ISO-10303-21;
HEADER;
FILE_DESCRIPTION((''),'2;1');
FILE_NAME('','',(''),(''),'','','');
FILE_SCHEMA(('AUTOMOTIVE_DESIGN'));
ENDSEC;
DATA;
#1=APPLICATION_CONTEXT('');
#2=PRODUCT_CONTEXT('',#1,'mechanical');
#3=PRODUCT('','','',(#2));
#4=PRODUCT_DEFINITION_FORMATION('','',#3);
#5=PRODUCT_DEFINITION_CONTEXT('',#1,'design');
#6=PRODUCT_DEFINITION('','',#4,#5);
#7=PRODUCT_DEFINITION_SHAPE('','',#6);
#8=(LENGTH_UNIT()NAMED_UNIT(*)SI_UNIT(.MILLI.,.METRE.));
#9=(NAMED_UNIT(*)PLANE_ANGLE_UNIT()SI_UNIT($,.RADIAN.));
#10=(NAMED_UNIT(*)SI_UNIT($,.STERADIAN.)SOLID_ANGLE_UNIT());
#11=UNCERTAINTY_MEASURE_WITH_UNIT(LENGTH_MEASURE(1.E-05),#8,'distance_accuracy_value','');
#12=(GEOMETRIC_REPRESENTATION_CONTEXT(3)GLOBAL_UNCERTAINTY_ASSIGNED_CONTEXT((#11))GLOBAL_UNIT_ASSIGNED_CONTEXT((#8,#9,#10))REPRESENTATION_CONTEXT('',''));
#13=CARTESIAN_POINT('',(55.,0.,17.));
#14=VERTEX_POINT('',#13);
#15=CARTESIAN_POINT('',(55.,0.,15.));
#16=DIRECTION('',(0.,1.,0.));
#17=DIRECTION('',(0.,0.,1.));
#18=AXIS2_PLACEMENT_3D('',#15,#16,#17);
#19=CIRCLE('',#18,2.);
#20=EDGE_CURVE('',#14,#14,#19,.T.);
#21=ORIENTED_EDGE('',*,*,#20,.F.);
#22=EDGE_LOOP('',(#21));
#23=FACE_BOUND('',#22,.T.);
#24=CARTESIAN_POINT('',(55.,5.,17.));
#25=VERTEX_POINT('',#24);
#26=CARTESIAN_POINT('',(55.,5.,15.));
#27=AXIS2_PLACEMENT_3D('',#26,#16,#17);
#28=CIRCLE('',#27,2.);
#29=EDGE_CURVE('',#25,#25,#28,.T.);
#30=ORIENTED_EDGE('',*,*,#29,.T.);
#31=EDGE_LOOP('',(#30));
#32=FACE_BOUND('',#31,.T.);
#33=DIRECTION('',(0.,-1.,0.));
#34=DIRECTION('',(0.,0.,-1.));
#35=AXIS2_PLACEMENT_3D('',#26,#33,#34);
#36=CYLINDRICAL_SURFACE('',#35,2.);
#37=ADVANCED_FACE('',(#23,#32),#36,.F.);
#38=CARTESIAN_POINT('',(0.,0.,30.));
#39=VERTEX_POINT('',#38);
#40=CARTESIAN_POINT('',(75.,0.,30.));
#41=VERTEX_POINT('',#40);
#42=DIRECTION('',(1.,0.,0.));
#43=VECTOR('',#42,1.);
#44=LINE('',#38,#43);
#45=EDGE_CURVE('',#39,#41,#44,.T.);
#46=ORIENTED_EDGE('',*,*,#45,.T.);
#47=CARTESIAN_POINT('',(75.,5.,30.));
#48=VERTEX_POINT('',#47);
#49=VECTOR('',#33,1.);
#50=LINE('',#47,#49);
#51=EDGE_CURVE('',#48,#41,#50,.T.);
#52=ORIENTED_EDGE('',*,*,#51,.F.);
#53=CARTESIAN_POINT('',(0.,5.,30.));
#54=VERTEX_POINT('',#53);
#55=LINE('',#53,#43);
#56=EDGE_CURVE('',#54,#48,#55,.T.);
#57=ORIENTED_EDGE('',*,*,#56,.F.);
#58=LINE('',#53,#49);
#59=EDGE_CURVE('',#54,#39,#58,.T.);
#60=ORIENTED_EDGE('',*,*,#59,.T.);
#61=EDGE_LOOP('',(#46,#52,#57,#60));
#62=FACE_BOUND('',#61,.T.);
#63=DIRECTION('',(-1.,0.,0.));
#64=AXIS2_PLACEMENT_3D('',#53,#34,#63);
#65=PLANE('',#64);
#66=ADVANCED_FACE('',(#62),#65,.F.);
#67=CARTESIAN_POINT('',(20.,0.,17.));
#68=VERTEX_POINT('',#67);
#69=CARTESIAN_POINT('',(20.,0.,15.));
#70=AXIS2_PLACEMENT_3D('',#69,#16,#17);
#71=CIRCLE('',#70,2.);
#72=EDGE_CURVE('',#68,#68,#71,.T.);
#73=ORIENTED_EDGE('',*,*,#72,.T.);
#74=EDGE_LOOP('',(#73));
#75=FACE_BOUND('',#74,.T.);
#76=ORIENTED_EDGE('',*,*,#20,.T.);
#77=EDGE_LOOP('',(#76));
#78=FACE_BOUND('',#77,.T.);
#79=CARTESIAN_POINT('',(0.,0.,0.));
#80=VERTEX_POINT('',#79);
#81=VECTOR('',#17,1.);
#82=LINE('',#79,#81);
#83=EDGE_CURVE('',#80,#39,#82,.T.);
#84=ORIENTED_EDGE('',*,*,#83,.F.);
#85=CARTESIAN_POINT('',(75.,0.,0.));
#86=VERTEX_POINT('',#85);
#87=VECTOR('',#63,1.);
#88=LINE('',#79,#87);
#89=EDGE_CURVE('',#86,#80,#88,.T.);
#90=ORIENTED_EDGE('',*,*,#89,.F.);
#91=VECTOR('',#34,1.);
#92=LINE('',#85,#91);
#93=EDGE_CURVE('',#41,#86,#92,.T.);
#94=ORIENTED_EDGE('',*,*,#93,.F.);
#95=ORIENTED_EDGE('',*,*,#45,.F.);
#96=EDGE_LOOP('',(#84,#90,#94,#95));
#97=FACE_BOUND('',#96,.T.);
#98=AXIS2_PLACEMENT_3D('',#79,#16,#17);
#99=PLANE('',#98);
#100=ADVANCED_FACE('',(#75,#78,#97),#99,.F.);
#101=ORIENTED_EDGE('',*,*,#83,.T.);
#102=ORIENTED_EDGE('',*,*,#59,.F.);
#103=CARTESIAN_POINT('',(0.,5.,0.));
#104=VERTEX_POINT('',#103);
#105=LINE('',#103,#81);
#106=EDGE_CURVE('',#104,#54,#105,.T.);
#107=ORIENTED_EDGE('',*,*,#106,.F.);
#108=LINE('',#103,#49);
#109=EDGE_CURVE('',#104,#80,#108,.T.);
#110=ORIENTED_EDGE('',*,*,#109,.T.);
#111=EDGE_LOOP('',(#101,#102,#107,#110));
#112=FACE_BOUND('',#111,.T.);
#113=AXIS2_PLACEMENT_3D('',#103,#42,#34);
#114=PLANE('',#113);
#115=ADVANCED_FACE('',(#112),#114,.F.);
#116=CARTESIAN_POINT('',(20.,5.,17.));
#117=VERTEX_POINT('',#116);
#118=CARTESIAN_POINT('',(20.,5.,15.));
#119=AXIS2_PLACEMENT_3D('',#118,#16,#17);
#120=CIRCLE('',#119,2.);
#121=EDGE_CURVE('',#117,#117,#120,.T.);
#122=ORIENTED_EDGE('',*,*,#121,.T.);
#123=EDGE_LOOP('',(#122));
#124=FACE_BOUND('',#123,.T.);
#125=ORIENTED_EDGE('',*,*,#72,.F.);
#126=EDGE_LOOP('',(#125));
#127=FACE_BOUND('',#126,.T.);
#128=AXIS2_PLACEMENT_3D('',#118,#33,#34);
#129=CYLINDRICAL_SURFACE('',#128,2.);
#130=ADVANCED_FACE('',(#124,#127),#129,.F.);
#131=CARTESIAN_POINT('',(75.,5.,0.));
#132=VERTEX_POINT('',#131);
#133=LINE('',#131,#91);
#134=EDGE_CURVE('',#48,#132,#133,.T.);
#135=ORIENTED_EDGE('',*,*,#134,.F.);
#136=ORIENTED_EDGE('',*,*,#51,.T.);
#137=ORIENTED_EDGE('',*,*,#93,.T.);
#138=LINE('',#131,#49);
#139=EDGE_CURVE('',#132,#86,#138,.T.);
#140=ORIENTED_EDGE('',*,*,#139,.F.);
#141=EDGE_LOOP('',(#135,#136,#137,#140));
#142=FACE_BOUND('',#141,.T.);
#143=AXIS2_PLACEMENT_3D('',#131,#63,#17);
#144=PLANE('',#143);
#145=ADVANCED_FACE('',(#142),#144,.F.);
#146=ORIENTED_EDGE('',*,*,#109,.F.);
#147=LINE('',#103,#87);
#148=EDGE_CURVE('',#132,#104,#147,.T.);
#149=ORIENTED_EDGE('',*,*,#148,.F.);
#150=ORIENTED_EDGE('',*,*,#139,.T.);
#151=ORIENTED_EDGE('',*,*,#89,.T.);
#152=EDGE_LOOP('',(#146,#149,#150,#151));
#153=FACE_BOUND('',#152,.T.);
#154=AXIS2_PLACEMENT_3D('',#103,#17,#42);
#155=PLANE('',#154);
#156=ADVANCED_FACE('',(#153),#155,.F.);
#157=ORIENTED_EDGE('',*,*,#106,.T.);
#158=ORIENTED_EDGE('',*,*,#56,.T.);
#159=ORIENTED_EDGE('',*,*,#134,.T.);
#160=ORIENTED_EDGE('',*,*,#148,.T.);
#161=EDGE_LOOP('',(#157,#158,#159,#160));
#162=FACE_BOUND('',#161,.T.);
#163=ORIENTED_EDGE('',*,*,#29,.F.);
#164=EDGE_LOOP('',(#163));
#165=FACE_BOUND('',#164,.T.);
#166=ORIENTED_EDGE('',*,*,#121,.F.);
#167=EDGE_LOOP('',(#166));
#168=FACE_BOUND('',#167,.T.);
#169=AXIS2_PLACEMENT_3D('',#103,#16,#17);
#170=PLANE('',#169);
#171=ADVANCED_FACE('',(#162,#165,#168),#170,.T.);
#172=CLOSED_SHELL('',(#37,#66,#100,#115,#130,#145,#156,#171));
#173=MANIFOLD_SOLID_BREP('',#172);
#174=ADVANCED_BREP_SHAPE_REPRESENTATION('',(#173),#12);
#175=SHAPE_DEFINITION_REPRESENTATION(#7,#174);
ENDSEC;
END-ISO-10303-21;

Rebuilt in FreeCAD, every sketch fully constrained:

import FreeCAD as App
import Part
import Sketcher
from FreeCAD import Vector

doc = App.newDocument("Part")
body = doc.addObject("PartDesign::Body", "Body")

sketch1 = body.newObject("Sketcher::SketchObject", "Sketch")
sketch1.AttachmentSupport = (doc.getObject("XZ_Plane"), [""])
sketch1.MapMode = "FlatFace"
sketch1.addGeometry([
    Part.LineSegment(Vector(0, 0, 0), Vector(0, 30, 0)),
    Part.LineSegment(Vector(0, 30, 0), Vector(75, 30, 0)),
    Part.LineSegment(Vector(75, 30, 0), Vector(75, 0, 0)),
    Part.LineSegment(Vector(75, 0, 0), Vector(0, 0, 0)),
    Part.Circle(Vector(20, 15, 0), Vector(0, 0, 1), 2),
    Part.Circle(Vector(55, 15, 0), Vector(0, 0, 1), 2),
], False)
sketch1.addConstraint([
    Sketcher.Constraint("Coincident", 0, 2, 1, 1),
    Sketcher.Constraint("Coincident", 1, 2, 2, 1),
    Sketcher.Constraint("Coincident", 2, 2, 3, 1),
    Sketcher.Constraint("Coincident", 3, 2, 0, 1),
    Sketcher.Constraint("Vertical", 0),
    Sketcher.Constraint("Horizontal", 1),
    Sketcher.Constraint("Vertical", 2),
    Sketcher.Constraint("Horizontal", 3),
    Sketcher.Constraint("Coincident", 3, 2, -1, 1),
    Sketcher.Constraint("Equal", 4, 5),
    Sketcher.Constraint("Horizontal", 4, 3, 5, 3),
    Sketcher.Constraint("Diameter", 4, 4.0),
    Sketcher.Constraint("DistanceX", 1, 1, 1, 2, 75.0),
    Sketcher.Constraint("DistanceY", 0, 1, 0, 2, 30.0),
    Sketcher.Constraint("DistanceX", -1, 1, 4, 3, 20.0),
    Sketcher.Constraint("DistanceY", -1, 1, 4, 3, 15.0),
    Sketcher.Constraint("DistanceX", -1, 1, 5, 3, 55.0),
])
pad1 = body.newObject("PartDesign::Pad", "Pad")
pad1.Profile = sketch1
pad1.Length = 5
pad1.Reversed = True

doc.recompute()
